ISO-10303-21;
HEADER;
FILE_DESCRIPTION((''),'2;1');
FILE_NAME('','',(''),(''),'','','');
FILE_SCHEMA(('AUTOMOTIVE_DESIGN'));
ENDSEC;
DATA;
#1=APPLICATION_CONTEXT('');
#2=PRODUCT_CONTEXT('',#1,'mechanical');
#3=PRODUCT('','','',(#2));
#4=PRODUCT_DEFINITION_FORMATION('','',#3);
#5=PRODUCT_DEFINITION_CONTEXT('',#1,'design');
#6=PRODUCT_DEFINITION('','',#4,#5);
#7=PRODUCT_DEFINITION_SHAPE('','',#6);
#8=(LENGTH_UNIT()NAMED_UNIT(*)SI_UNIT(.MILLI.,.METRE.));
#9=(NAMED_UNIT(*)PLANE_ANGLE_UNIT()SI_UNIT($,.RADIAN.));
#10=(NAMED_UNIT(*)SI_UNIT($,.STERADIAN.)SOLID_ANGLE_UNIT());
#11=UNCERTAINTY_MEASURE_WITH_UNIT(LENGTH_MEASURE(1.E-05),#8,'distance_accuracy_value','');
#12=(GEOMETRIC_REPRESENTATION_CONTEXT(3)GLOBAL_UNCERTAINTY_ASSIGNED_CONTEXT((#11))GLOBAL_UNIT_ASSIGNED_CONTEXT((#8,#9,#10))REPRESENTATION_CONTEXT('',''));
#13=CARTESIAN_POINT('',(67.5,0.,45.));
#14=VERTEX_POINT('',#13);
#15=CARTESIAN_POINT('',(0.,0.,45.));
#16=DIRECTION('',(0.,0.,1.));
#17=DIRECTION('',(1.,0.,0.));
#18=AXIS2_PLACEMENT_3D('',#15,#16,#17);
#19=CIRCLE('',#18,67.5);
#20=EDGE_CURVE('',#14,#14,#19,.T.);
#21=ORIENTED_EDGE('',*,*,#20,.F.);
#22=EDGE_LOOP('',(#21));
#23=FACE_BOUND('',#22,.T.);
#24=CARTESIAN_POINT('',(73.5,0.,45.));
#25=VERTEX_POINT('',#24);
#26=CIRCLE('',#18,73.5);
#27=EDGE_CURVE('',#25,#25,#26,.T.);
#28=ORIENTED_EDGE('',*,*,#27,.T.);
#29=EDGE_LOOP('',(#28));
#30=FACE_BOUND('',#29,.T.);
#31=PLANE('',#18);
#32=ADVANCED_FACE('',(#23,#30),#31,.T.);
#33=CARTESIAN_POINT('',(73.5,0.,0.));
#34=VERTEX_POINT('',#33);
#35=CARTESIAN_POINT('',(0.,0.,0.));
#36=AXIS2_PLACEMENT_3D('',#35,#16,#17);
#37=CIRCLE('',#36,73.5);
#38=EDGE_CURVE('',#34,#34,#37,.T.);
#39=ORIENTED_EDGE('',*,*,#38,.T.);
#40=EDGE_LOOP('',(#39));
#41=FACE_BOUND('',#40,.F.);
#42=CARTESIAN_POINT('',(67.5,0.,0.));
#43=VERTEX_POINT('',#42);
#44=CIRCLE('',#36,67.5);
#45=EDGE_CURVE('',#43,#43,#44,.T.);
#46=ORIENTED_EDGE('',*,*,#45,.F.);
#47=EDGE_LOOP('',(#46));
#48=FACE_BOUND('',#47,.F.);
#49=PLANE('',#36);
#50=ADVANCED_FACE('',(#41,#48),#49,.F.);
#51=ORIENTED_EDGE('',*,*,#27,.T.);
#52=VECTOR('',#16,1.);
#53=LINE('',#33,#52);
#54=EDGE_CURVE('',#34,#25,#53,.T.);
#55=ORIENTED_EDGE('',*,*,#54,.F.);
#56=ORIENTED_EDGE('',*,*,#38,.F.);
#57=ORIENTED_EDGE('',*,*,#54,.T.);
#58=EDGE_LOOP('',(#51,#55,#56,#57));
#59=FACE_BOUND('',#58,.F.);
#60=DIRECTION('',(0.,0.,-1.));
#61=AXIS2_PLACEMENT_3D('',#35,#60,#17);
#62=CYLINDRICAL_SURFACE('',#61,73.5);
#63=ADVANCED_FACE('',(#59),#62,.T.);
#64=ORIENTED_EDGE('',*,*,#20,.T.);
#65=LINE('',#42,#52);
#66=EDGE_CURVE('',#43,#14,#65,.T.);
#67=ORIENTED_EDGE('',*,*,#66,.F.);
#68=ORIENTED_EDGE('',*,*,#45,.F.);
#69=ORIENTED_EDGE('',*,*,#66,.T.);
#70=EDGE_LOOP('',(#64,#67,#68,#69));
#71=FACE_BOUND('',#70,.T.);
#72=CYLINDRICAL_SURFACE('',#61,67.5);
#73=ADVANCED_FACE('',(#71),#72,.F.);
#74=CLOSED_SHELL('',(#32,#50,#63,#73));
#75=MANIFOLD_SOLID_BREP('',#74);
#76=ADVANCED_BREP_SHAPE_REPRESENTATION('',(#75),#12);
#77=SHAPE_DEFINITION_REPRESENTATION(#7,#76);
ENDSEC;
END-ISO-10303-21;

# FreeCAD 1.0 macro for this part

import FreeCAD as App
import Part
import Sketcher
Q = App.Units.Quantity

doc = App.newDocument("Part")
body = doc.addObject("PartDesign::Body", "Body")

# Sketch on XY plane
sketch1 = body.newObject("Sketcher::SketchObject", "Sketch")
sketch1.AttachmentSupport = (doc.getObject("XY_Plane"), [""])
sketch1.MapMode = "FlatFace"
sketch1.addGeometry([
    Part.Circle(App.Vector(0, 0, 0), App.Vector(0, 0, 1), 74),
    Part.Circle(App.Vector(0, 0, 0), App.Vector(0, 0, 1), 68),
], False)
sketch1.addConstraint([
    Sketcher.Constraint("Coincident", 0, 3, -1, 1),
    Sketcher.Constraint("Coincident", 1, 3, -1, 1),
    Sketcher.Constraint("Diameter", 0, Q("147 mm")),
    Sketcher.Constraint("Diameter", 1, Q("135 mm")),
])
pad1 = body.newObject("PartDesign::Pad", "Pad")
pad1.Profile = sketch1
pad1.Length = 45

doc.recompute()
